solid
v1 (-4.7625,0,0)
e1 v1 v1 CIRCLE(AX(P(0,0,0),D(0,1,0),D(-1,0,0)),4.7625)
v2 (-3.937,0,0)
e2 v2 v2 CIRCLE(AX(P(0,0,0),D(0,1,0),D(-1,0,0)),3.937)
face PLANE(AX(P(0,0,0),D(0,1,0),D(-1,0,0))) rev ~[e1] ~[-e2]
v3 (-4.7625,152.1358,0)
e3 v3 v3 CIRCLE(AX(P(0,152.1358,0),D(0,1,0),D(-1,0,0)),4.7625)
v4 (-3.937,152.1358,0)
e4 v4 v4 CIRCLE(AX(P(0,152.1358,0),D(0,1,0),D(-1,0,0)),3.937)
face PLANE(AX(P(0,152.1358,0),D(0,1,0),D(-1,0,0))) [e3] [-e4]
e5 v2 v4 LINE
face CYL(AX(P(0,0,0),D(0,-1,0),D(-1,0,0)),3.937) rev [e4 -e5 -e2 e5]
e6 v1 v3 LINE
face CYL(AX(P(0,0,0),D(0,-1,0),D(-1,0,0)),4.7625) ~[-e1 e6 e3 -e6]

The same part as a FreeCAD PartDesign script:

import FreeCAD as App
import Part
import Sketcher
from FreeCAD import Vector
Q = App.Units.Quantity

doc = App.newDocument("Part")
params = doc.addObject("Spreadsheet::Sheet", "Params")
for row, (alias, value) in enumerate([
    ("sketch1_diameter", "0.31 in"),
    ("sketch1_diameter2", "0.375 in"),
    ("pad1_length", "5.9895984 in"),
], start=1):
    params.set(f"A{row}", alias)
    params.set(f"B{row}", "=" + value)
    params.setAlias(f"B{row}", alias)

body = doc.addObject("PartDesign::Body", "Body")

sketch1 = doc.addObject("Sketcher::SketchObject", "Sketch")
body.addObject(sketch1)
sketch1.AttachmentSupport = (doc.XZ_Plane, [""])
sketch1.MapMode = "FlatFace"
sketch1.addGeometry(Part.Circle(Vector(0, 0, 0), Vector(0, 0, 1), 4.8), False)
sketch1.addGeometry(Part.Circle(Vector(0, 0, 0), Vector(0, 0, 1), 3.9), False)
sketch1.addConstraint(Sketcher.Constraint("Coincident", 0, 3, -1, 1))
sketch1.addConstraint(Sketcher.Constraint("Coincident", 1, 3, -1, 1))
sketch1.addConstraint(Sketcher.Constraint("Diameter", 1, Q("0.31 in")))
sketch1.addConstraint(Sketcher.Constraint("Diameter", 0, Q("0.375 in")))
sketch1.setExpression("Constraints[2]", "Params.sketch1_diameter")
sketch1.setExpression("Constraints[3]", "Params.sketch1_diameter2")
pad1 = doc.addObject("PartDesign::Pad", "Pad")
body.addObject(pad1)
pad1.Profile = sketch1
pad1.setExpression("Length", "Params.pad1_length")
pad1.Reversed = True

doc.recompute()
